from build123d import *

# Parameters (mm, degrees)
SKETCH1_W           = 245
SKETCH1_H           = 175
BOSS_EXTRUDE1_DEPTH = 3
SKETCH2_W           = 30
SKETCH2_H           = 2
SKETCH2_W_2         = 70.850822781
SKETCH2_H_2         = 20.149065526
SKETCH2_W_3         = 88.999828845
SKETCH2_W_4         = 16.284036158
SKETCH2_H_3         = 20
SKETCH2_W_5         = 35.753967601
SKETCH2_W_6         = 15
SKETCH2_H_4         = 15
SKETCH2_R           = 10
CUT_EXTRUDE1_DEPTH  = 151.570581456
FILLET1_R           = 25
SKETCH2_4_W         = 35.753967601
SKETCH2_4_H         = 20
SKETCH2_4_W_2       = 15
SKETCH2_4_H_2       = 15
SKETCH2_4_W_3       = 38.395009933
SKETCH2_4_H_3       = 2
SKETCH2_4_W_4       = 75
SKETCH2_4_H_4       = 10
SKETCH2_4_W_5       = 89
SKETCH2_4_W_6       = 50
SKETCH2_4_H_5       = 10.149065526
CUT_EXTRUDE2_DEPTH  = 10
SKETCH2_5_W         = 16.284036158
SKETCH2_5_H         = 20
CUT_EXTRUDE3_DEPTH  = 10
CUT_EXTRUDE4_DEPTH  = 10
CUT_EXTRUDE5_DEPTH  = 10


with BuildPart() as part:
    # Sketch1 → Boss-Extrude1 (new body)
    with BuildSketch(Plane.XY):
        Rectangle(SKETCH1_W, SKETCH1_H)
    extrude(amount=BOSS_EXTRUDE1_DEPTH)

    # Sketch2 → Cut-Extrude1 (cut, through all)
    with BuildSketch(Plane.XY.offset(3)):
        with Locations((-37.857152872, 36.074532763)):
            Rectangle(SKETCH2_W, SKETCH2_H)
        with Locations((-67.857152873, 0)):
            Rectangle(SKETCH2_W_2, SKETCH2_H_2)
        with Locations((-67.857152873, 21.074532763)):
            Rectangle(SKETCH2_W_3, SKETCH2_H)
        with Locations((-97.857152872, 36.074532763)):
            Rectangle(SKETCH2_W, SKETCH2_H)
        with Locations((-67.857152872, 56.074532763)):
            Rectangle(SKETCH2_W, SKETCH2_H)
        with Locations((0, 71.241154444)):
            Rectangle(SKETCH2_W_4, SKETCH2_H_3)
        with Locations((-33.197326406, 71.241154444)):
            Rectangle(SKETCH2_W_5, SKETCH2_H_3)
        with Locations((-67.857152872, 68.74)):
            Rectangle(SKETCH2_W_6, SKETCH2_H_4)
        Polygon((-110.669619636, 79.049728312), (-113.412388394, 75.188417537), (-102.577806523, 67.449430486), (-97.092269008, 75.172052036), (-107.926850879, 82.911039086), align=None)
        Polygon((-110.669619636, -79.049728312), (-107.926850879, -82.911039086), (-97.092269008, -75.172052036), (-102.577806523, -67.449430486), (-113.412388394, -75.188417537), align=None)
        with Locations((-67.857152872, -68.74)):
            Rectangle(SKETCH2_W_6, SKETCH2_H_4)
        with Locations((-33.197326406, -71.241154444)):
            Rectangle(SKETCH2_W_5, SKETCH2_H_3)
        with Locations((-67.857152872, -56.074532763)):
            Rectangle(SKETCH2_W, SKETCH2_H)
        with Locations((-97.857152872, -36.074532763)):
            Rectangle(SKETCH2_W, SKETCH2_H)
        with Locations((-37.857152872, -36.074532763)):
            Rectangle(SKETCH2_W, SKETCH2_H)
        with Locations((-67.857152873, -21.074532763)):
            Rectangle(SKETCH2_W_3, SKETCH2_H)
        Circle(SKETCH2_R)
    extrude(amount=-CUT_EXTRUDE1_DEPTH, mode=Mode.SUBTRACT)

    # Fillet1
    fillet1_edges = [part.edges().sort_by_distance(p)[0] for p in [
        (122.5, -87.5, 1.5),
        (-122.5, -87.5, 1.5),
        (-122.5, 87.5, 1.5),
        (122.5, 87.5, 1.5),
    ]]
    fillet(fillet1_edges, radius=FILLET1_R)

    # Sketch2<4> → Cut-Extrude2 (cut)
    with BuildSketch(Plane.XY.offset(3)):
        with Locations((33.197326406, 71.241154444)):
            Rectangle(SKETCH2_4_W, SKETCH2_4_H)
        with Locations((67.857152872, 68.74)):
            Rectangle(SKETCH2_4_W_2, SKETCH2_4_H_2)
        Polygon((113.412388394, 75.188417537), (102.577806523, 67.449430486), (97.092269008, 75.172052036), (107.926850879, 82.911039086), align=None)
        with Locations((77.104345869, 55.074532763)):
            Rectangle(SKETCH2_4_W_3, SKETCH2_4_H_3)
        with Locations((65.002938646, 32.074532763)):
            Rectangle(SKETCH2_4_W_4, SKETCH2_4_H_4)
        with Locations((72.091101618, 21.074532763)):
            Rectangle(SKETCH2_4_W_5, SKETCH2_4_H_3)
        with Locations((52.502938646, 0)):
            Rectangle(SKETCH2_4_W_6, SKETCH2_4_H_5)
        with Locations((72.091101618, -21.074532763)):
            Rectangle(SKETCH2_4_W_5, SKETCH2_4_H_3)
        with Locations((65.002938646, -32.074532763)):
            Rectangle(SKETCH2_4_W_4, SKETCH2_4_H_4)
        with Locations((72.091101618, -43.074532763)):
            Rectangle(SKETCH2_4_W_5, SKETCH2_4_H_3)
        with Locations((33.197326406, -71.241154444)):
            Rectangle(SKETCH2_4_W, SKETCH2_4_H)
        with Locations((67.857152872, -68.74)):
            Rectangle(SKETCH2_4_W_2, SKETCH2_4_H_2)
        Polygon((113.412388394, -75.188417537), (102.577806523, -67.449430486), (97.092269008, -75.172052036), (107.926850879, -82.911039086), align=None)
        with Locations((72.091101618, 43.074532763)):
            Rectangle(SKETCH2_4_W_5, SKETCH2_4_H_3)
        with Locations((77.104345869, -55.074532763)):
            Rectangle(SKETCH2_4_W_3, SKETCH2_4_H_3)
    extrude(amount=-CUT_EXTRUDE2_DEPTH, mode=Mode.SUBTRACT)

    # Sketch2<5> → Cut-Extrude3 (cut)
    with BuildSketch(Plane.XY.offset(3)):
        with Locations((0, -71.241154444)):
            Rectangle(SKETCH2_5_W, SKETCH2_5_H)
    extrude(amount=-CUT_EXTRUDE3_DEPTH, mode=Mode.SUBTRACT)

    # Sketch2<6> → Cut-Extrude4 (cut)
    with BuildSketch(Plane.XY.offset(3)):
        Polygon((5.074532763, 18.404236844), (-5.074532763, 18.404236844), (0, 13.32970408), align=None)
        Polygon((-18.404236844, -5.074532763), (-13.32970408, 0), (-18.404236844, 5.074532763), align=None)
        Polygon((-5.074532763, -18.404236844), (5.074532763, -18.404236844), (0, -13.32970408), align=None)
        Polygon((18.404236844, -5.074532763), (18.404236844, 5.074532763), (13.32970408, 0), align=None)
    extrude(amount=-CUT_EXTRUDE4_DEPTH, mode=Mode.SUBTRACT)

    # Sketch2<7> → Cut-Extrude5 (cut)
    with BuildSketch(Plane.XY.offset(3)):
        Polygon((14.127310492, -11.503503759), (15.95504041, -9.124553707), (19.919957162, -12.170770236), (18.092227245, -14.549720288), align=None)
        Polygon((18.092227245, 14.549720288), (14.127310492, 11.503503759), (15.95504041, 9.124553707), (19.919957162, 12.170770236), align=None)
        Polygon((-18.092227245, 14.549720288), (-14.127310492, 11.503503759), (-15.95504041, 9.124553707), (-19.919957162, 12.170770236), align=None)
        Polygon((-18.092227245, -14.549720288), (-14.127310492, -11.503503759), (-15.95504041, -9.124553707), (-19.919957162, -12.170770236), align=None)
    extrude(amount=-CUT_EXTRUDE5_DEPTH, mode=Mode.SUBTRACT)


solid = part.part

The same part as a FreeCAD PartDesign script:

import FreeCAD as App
import Part
import Sketcher
from FreeCAD import Vector


def edges_at(feature, points):
    """Names of the edges that pass closest to the given points."""
    edges = feature.Shape.Edges
    near = lambda p: min(range(len(edges)), key=lambda i: edges[i].distToShape(Part.Vertex(*p))[0])
    return sorted({f"Edge{near(p) + 1}" for p in points})


def add_polygon(sketch, points):
    """Adds a closed chain of lines whose ends are joined by coincident constraints."""
    first, n = sketch.GeometryCount, len(points)
    for a, b in zip(points, points[1:] + points[:1]):
        sketch.addGeometry(Part.LineSegment(App.Vector(*a, 0), App.Vector(*b, 0)), False)
    for i in range(n):
        sketch.addConstraint(Sketcher.Constraint("Coincident", first + i, 2, first + (i + 1) % n, 1))

doc = App.newDocument("Part")
params = doc.addObject("Spreadsheet::Sheet", "Params")
for row, (alias, value) in enumerate([
    ("sketch1_width", "245 mm"),
    ("sketch1_height", "175 mm"),
    ("pad1_length", "3 mm"),
    ("sketch2_diameter", "20 mm"),
    ("sketch2_width", "30 mm"),
    ("sketch2_width2", "15 mm"),
    ("sketch2_height", "2 mm"),
    ("sketch2_height2", "20 mm"),
    ("fillet_radius", "25 mm"),
    ("sketch3_width", "15 mm"),
    ("sketch3_width2", "75 mm"),
    ("sketch3_width3", "89 mm"),
    ("sketch3_width4", "50 mm"),
    ("sketch3_height", "20 mm"),
    ("pocket2_length", "10 mm"),
    ("sketch4_height", "20 mm"),
    ("pocket3_length", "10 mm"),
    ("pocket4_length", "10 mm"),
    ("sketch6_length", "3 mm"),
    ("sketch6_length2", "5 mm"),
    ("pocket5_length", "10 mm"),
], start=1):
    params.set(f"A{row}", alias)
    params.set(f"B{row}", "=" + value)
    params.setAlias(f"B{row}", alias)

body = doc.addObject("PartDesign::Body", "Body")

sketch1 = body.newObject("Sketcher::SketchObject", "Sketch")
sketch1.AttachmentSupport = (doc.getObject("XY_Plane"), [""])
sketch1.MapMode = "FlatFace"
add_polygon(sketch1, [(-122, 88), (-122, -88), (122, -88), (122, 88)])
sketch1.addConstraint(Sketcher.Constraint("Vertical", 0))
sketch1.addConstraint(Sketcher.Constraint("Horizontal", 1))
sketch1.addConstraint(Sketcher.Constraint("Vertical", 2))
sketch1.addConstraint(Sketcher.Constraint("Horizontal", 3))
sketch1.addConstraint(Sketcher.Constraint("Symmetric", 0, 2, 2, 2, -1, 1))
sketch1.addConstraint(Sketcher.Constraint("DistanceX", 1, 1, 1, 2, 245.0))
sketch1.addConstraint(Sketcher.Constraint("DistanceY", 0, 2, 0, 1, 175.0))
sketch1.setExpression("Constraints[9]", "Params.sketch1_width")
sketch1.setExpression("Constraints[10]", "Params.sketch1_height")
pad1 = body.newObject("PartDesign::Pad", "Pad")
pad1.Profile = sketch1
pad1.setExpression("Length", "Params.pad1_length")

sketch2 = body.newObject("Sketcher::SketchObject", "Sketch001")
sketch2.AttachmentSupport = (doc.getObject("XY_Plane"), [""])
sketch2.MapMode = "FlatFace"
sketch2.AttachmentOffset = App.Placement(Vector(0, 0, 3), App.Rotation())
add_polygon(sketch2, [(-52.9, 37.1), (-52.9, 35.1), (-22.9, 35.1), (-22.9, 37.1)])
add_polygon(sketch2, [(-103.3, 10.1), (-103.3, -10.1), (-32.4, -10.1), (-32.4, 10.1)])
add_polygon(sketch2, [(-112.4, 22.1), (-112.4, 20.1), (-23.4, 20.1), (-23.4, 22.1)])
add_polygon(sketch2, [(-112.9, 37.1), (-112.9, 35.1), (-82.9, 35.1), (-82.9, 37.1)])
add_polygon(sketch2, [(-82.9, 57.1), (-82.9, 55.1), (-52.9, 55.1), (-52.9, 57.1)])
add_polygon(sketch2, [(-8.1, 81.2), (-8.1, 61.2), (8.1, 61.2), (8.1, 81.2)])
add_polygon(sketch2, [(-51.1, 81.2), (-51.1, 61.2), (-15.3, 61.2), (-15.3, 81.2)])
add_polygon(sketch2, [(-75.4, 76.2), (-75.4, 61.2), (-60.4, 61.2), (-60.4, 76.2)])
add_polygon(sketch2, [(-110.7, 79), (-113.4, 75.2), (-102.6, 67.4), (-97.1, 75.2), (-107.9, 82.9)])
add_polygon(sketch2, [(-110.7, -79), (-107.9, -82.9), (-97.1, -75.2), (-102.6, -67.4), (-113.4, -75.2)])
add_polygon(sketch2, [(-75.4, -61.2), (-75.4, -76.2), (-60.4, -76.2), (-60.4, -61.2)])
add_polygon(sketch2, [(-51.1, -61.2), (-51.1, -81.2), (-15.3, -81.2), (-15.3, -61.2)])
add_polygon(sketch2, [(-82.9, -55.1), (-82.9, -57.1), (-52.9, -57.1), (-52.9, -55.1)])
add_polygon(sketch2, [(-112.9, -35.1), (-112.9, -37.1), (-82.9, -37.1), (-82.9, -35.1)])
add_polygon(sketch2, [(-52.9, -35.1), (-52.9, -37.1), (-22.9, -37.1), (-22.9, -35.1)])
add_polygon(sketch2, [(-112.4, -20.1), (-112.4, -22.1), (-23.4, -22.1), (-23.4, -20.1)])
sketch2.addGeometry(Part.Circle(Vector(0, 0, 0), Vector(0, 0, 1), 10), False)
sketch2.addConstraint(Sketcher.Constraint("Vertical", 0))
sketch2.addConstraint(Sketcher.Constraint("Horizontal", 1))
sketch2.addConstraint(Sketcher.Constraint("Vertical", 2))
sketch2.addConstraint(Sketcher.Constraint("Horizontal", 3))
sketch2.addConstraint(Sketcher.Constraint("Vertical", 4))
sketch2.addConstraint(Sketcher.Constraint("Horizontal", 5))
sketch2.addConstraint(Sketcher.Constraint("Vertical", 6))
sketch2.addConstraint(Sketcher.Constraint("Horizontal", 7))
sketch2.addConstraint(Sketcher.Constraint("Vertical", 8))
sketch2.addConstraint(Sketcher.Constraint("Horizontal", 9))
sketch2.addConstraint(Sketcher.Constraint("Vertical", 10))
sketch2.addConstraint(Sketcher.Constraint("Horizontal", 11))
sketch2.addConstraint(Sketcher.Constraint("Vertical", 12))
sketch2.addConstraint(Sketcher.Constraint("Horizontal", 13))
sketch2.addConstraint(Sketcher.Constraint("Vertical", 14))
sketch2.addConstraint(Sketcher.Constraint("Horizontal", 15))
sketch2.addConstraint(Sketcher.Constraint("Vertical", 16))
sketch2.addConstraint(Sketcher.Constraint("Horizontal", 17))
sketch2.addConstraint(Sketcher.Constraint("Vertical", 18))
sketch2.addConstraint(Sketcher.Constraint("Horizontal", 19))
sketch2.addConstraint(Sketcher.Constraint("Vertical", 20))
sketch2.addConstraint(Sketcher.Constraint("Horizontal", 21))
sketch2.addConstraint(Sketcher.Constraint("Vertical", 22))
sketch2.addConstraint(Sketcher.Constraint("Horizontal", 23))
sketch2.addConstraint(Sketcher.Constraint("Vertical", 24))
sketch2.addConstraint(Sketcher.Constraint("Horizontal", 25))
sketch2.addConstraint(Sketcher.Constraint("Vertical", 26))
sketch2.addConstraint(Sketcher.Constraint("Horizontal", 27))
sketch2.addConstraint(Sketcher.Constraint("Vertical", 28))
sketch2.addConstraint(Sketcher.Constraint("Horizontal", 29))
sketch2.addConstraint(Sketcher.Constraint("Vertical", 30))
sketch2.addConstraint(Sketcher.Constraint("Horizontal", 31))
sketch2.addConstraint(Sketcher.Constraint("Vertical", 42))
sketch2.addConstraint(Sketcher.Constraint("Horizontal", 43))
sketch2.addConstraint(Sketcher.Constraint("Vertical", 44))
sketch2.addConstraint(Sketcher.Constraint("Horizontal", 45))
sketch2.addConstraint(Sketcher.Constraint("Vertical", 46))
sketch2.addConstraint(Sketcher.Constraint("Horizontal", 47))
sketch2.addConstraint(Sketcher.Constraint("Vertical", 48))
sketch2.addConstraint(Sketcher.Constraint("Horizontal", 49))
sketch2.addConstraint(Sketcher.Constraint("Vertical", 50))
sketch2.addConstraint(Sketcher.Constraint("Horizontal", 51))
sketch2.addConstraint(Sketcher.Constraint("Vertical", 52))
sketch2.addConstraint(Sketcher.Constraint("Horizontal", 53))
sketch2.addConstraint(Sketcher.Constraint("Vertical", 54))
sketch2.addConstraint(Sketcher.Constraint("Horizontal", 55))
sketch2.addConstraint(Sketcher.Constraint("Vertical", 56))
sketch2.addConstraint(Sketcher.Constraint("Horizontal", 57))
sketch2.addConstraint(Sketcher.Constraint("Vertical", 58))
sketch2.addConstraint(Sketcher.Constraint("Horizontal", 59))
sketch2.addConstraint(Sketcher.Constraint("Vertical", 60))
sketch2.addConstraint(Sketcher.Constraint("Horizontal", 61))
sketch2.addConstraint(Sketcher.Constraint("Vertical", 62))
sketch2.addConstraint(Sketcher.Constraint("Horizontal", 63))
sketch2.addConstraint(Sketcher.Constraint("Vertical", 64))
sketch2.addConstraint(Sketcher.Constraint("Horizontal", 65))
sketch2.addConstraint(Sketcher.Constraint("Coincident", 66, 3, -1, 1))
sketch2.addConstraint(Sketcher.Constraint("Symmetric", 35, 2, 37, 2, -1))
sketch2.addConstraint(Sketcher.Constraint("Symmetric", 34, 2, 38, 2, -1))
sketch2.addConstraint(Sketcher.Constraint("Symmetric", 33, 2, 39, 2, -1))
sketch2.addConstraint(Sketcher.Constraint("Symmetric", 32, 2, 40, 2, -1))
sketch2.addConstraint(Sketcher.Constraint("Symmetric", 36, 2, 41, 2, -1))
sketch2.addConstraint(Sketcher.Constraint("Symmetric", 31, 2, 42, 2, -1))
sketch2.addConstraint(Sketcher.Constraint("Symmetric", 29, 2, 44, 2, -1))
sketch2.addConstraint(Sketcher.Constraint("Symmetric", 27, 2, 46, 2, -1))
sketch2.addConstraint(Sketcher.Constraint("Symmetric", 25, 2, 48, 2, -1))
sketch2.addConstraint(Sketcher.Constraint("Symmetric", 19, 2, 50, 2, -1))
sketch2.addConstraint(Sketcher.Constraint("Symmetric", 17, 2, 52, 2, -1))
sketch2.addConstraint(Sketcher.Constraint("Symmetric", 15, 2, 54, 2, -1))
sketch2.addConstraint(Sketcher.Constraint("Symmetric", 13, 2, 56, 2, -1))
sketch2.addConstraint(Sketcher.Constraint("Symmetric", 3, 2, 58, 2, -1))
sketch2.addConstraint(Sketcher.Constraint("Symmetric", 1, 2, 60, 2, -1))
sketch2.addConstraint(Sketcher.Constraint("Symmetric", 11, 2, 62, 2, -1))
sketch2.addConstraint(Sketcher.Constraint("Symmetric", 9, 2, 64, 2, -1))
sketch2.addConstraint(Sketcher.Constraint("Parallel", 32, 34))
sketch2.addConstraint(Sketcher.Constraint("Parallel", 33, 35))
sketch2.addConstraint(Sketcher.Constraint("Parallel", 34, 36))
sketch2.addConstraint(Sketcher.Constraint("Horizontal", 1, 2, 12, 2))
sketch2.addConstraint(Sketcher.Constraint("Horizontal", 3, 2, 14, 2))
sketch2.addConstraint(Sketcher.Constraint("Horizontal", 21, 2, 24, 2))
sketch2.addConstraint(Sketcher.Constraint("Horizontal", 23, 2, 26, 2))
sketch2.addConstraint(Sketcher.Constraint("Vertical", 14, 2, 16, 2))
sketch2.addConstraint(Sketcher.Constraint("Vertical", 3, 2, 17, 2))
sketch2.addConstraint(Sketcher.Constraint("Equal", 3, 13))
sketch2.addConstraint(Sketcher.Constraint("Equal", 15, 17))
sketch2.addConstraint(Sketcher.Constraint("Equal", 2, 8))
sketch2.addConstraint(Sketcher.Constraint("Equal", 14, 16))
sketch2.addConstraint(Sketcher.Constraint("Equal", 45, 28))
sketch2.addConstraint(Sketcher.Constraint("Equal", 32, 36))
sketch2.addConstraint(Sketcher.Constraint("Diameter", 66, 20.0))
sketch2.addConstraint(Sketcher.Constraint("DistanceX", 1, 1, 1, 2, 30.0))
sketch2.addConstraint(Sketcher.Constraint("DistanceX", 29, 1, 29, 2, 15.0))
sketch2.addConstraint(Sketcher.Constraint("DistanceY", 0, 2, 0, 1, 2.0))
sketch2.addConstraint(Sketcher.Constraint("DistanceY", 20, 2, 20, 1, 20.0))
sketch2.addConstraint(Sketcher.Constraint("DistanceY", -1, 1, 28, 2, 61.24))
sketch2.addConstraint(Sketcher.Constraint("DistanceX", 9, 1, 9, 2, 88.999829))
sketch2.addConstraint(Sketcher.Constraint("DistanceX", 5, 1, 5, 2, 70.850823))
sketch2.addConstraint(Sketcher.Constraint("DistanceX", 21, 1, 21, 2, 16.284036))
sketch2.addConstraint(Sketcher.Constraint("DistanceX", 25, 1, 25, 2, 35.753968))
sketch2.addConstraint(Sketcher.Constraint("DistanceY", 4, 2, 4, 1, 20.149066))
sketch2.addConstraint(Sketcher.Constraint("DistanceX", 5, 2, -1, 1, 32.431741))
sketch2.addConstraint(Sketcher.Constraint("DistanceX", 9, 2, -1, 1, 23.357238))
sketch2.addConstraint(Sketcher.Constraint("DistanceX", 20, 2, -1, 1, 8.142018))
sketch2.addConstraint(Sketcher.Constraint("DistanceX", 24, 2, -1, 1, 51.07431))
sketch2.addConstraint(Sketcher.Constraint("DistanceX", 32, 2, -1, 1, 113.412388))
sketch2.addConstraint(Sketcher.Constraint("DistanceY", -1, 1, 33, 2, 67.44943))
sketch2.addConstraint(Sketcher.Constraint("DistanceX", 34, 2, -1, 1, 97.092269))
sketch2.addConstraint(Sketcher.Constraint("DistanceX", 35, 2, -1, 1, 107.926851))
sketch2.addConstraint(Sketcher.Constraint("DistanceY", -1, 1, 35, 2, 82.911039))
sketch2.addConstraint(Sketcher.Constraint("DistanceY", -1, 1, 36, 2, 79.049728))
sketch2.addConstraint(Sketcher.Constraint("DistanceX", 0, 2, -1, 1, 52.857153))
sketch2.addConstraint(Sketcher.Constraint("DistanceY", -1, 1, 0, 2, 35.074533))
sketch2.addConstraint(Sketcher.Constraint("DistanceY", 4, 2, -1, 1, 10.074533))
sketch2.addConstraint(Sketcher.Constraint("DistanceY", -1, 1, 8, 2, 20.074533))
sketch2.addConstraint(Sketcher.Constraint("DistanceY", -1, 1, 16, 2, 55.074533))
sketch2.addConstraint(Sketcher.Constraint("DistanceY", -1, 1, 20, 2, 61.241154))
sketch2.addConstraint(Sketcher.Constraint("DistanceX", 28, 2, -1, 1, 75.357153))
sketch2.setExpression("Constraints[155]", "Params.sketch2_diameter")
sketch2.setExpression("Constraints[156]", "Params.sketch2_width")
sketch2.setExpression("Constraints[157]", "Params.sketch2_width2")
sketch2.setExpression("Constraints[158]", "Params.sketch2_height")
sketch2.setExpression("Constraints[159]", "Params.sketch2_height2")
pocket1 = body.newObject("PartDesign::Pocket", "Pocket")
pocket1.Profile = sketch2
pocket1.Type = "ThroughAll"
doc.recompute()

fillet = body.newObject("PartDesign::Fillet", "Fillet")
fillet.Base = (pocket1, edges_at(pocket1, [
    (122.5, -87.5, 1.5),
    (-122.5, -87.5, 1.5),
    (-122.5, 87.5, 1.5),
    (122.5, 87.5, 1.5),
]))
fillet.setExpression("Radius", "Params.fillet_radius")

sketch3 = body.newObject("Sketcher::SketchObject", "Sketch002")
sketch3.AttachmentSupport = (doc.getObject("XY_Plane"), [""])
sketch3.MapMode = "FlatFace"
sketch3.AttachmentOffset = App.Placement(Vector(0, 0, 3), App.Rotation())
add_polygon(sketch3, [(15.3, 81.2), (15.3, 61.2), (51.1, 61.2), (51.1, 81.2)])
add_polygon(sketch3, [(60.4, 76.2), (60.4, 61.2), (75.4, 61.2), (75.4, 76.2)])
add_polygon(sketch3, [(102.6, 67.4), (113.4, 75.2), (107.9, 82.9), (97.1, 75.2)])
add_polygon(sketch3, [(57.9, 56.1), (57.9, 54.1), (96.3, 54.1), (96.3, 56.1)])
add_polygon(sketch3, [(27.5, 37.1), (27.5, 27.1), (102.5, 27.1), (102.5, 37.1)])
add_polygon(sketch3, [(27.6, 22.1), (27.6, 20.1), (116.6, 20.1), (116.6, 22.1)])
add_polygon(sketch3, [(27.5, 5.1), (27.5, -5.1), (77.5, -5.1), (77.5, 5.1)])
add_polygon(sketch3, [(27.6, -20.1), (27.6, -22.1), (116.6, -22.1), (116.6, -20.1)])
add_polygon(sketch3, [(27.5, -27.1), (27.5, -37.1), (102.5, -37.1), (102.5, -27.1)])
add_polygon(sketch3, [(27.6, -42.1), (27.6, -44.1), (116.6, -44.1), (116.6, -42.1)])
add_polygon(sketch3, [(15.3, -61.2), (15.3, -81.2), (51.1, -81.2), (51.1, -61.2)])
add_polygon(sketch3, [(60.4, -61.2), (60.4, -76.2), (75.4, -76.2), (75.4, -61.2)])
add_polygon(sketch3, [(113.4, -75.2), (102.6, -67.4), (97.1, -75.2), (107.9, -82.9)])
add_polygon(sketch3, [(27.6, 44.1), (27.6, 42.1), (116.6, 42.1), (116.6, 44.1)])
add_polygon(sketch3, [(57.9, -54.1), (57.9, -56.1), (96.3, -56.1), (96.3, -54.1)])
sketch3.addConstraint(Sketcher.Constraint("Vertical", 0))
sketch3.addConstraint(Sketcher.Constraint("Horizontal", 1))
sketch3.addConstraint(Sketcher.Constraint("Vertical", 2))
sketch3.addConstraint(Sketcher.Constraint("Horizontal", 3))
sketch3.addConstraint(Sketcher.Constraint("Vertical", 4))
sketch3.addConstraint(Sketcher.Constraint("Horizontal", 5))
sketch3.addConstraint(Sketcher.Constraint("Vertical", 6))
sketch3.addConstraint(Sketcher.Constraint("Horizontal", 7))
sketch3.addConstraint(Sketcher.Constraint("Vertical", 12))
sketch3.addConstraint(Sketcher.Constraint("Horizontal", 13))
sketch3.addConstraint(Sketcher.Constraint("Vertical", 14))
sketch3.addConstraint(Sketcher.Constraint("Horizontal", 15))
sketch3.addConstraint(Sketcher.Constraint("Vertical", 16))
sketch3.addConstraint(Sketcher.Constraint("Horizontal", 17))
sketch3.addConstraint(Sketcher.Constraint("Vertical", 18))
sketch3.addConstraint(Sketcher.Constraint("Horizontal", 19))
sketch3.addConstraint(Sketcher.Constraint("Vertical", 20))
sketch3.addConstraint(Sketcher.Constraint("Horizontal", 21))
sketch3.addConstraint(Sketcher.Constraint("Vertical", 22))
sketch3.addConstraint(Sketcher.Constraint("Horizontal", 23))
sketch3.addConstraint(Sketcher.Constraint("Vertical", 24))
sketch3.addConstraint(Sketcher.Constraint("Horizontal", 25))
sketch3.addConstraint(Sketcher.Constraint("Vertical", 26))
sketch3.addConstraint(Sketcher.Constraint("Horizontal", 27))
sketch3.addConstraint(Sketcher.Constraint("Vertical", 28))
sketch3.addConstraint(Sketcher.Constraint("Horizontal", 29))
sketch3.addConstraint(Sketcher.Constraint("Vertical", 30))
sketch3.addConstraint(Sketcher.Constraint("Horizontal", 31))
sketch3.addConstraint(Sketcher.Constraint("Vertical", 32))
sketch3.addConstraint(Sketcher.Constraint("Horizontal", 33))
sketch3.addConstraint(Sketcher.Constraint("Vertical", 34))
sketch3.addConstraint(Sketcher.Constraint("Horizontal", 35))
sketch3.addConstraint(Sketcher.Constraint("Vertical", 36))
sketch3.addConstraint(Sketcher.Constraint("Horizontal", 37))
sketch3.addConstraint(Sketcher.Constraint("Vertical", 38))
sketch3.addConstraint(Sketcher.Constraint("Horizontal", 39))
sketch3.addConstraint(Sketcher.Constraint("Vertical", 40))
sketch3.addConstraint(Sketcher.Constraint("Horizontal", 41))
sketch3.addConstraint(Sketcher.Constraint("Vertical", 42))
sketch3.addConstraint(Sketcher.Constraint("Horizontal", 43))
sketch3.addConstraint(Sketcher.Constraint("Vertical", 44))
sketch3.addConstraint(Sketcher.Constraint("Horizontal", 45))
sketch3.addConstraint(Sketcher.Constraint("Vertical", 46))
sketch3.addConstraint(Sketcher.Constraint("Horizontal", 47))
sketch3.addConstraint(Sketcher.Constraint("Vertical", 52))
sketch3.addConstraint(Sketcher.Constraint("Horizontal", 53))
sketch3.addConstraint(Sketcher.Constraint("Vertical", 54))
sketch3.addConstraint(Sketcher.Constraint("Horizontal", 55))
sketch3.addConstraint(Sketcher.Constraint("Vertical", 56))
sketch3.addConstraint(Sketcher.Constraint("Horizontal", 57))
sketch3.addConstraint(Sketcher.Constraint("Vertical", 58))
sketch3.addConstraint(Sketcher.Constraint("Horizontal", 59))
sketch3.addConstraint(Sketcher.Constraint("Symmetric", 23, 2, 28, 2, -1))
sketch3.addConstraint(Sketcher.Constraint("Symmetric", 21, 2, 30, 2, -1))
sketch3.addConstraint(Sketcher.Constraint("Symmetric", 19, 2, 32, 2, -1))
sketch3.addConstraint(Sketcher.Constraint("Symmetric", 17, 2, 34, 2, -1))
sketch3.addConstraint(Sketcher.Constraint("Symmetric", 3, 2, 40, 2, -1))
sketch3.addConstraint(Sketcher.Constraint("Symmetric", 1, 2, 42, 2, -1))
sketch3.addConstraint(Sketcher.Constraint("Symmetric", 7, 2, 44, 2, -1))
sketch3.addConstraint(Sketcher.Constraint("Symmetric", 5, 2, 46, 2, -1))
sketch3.addConstraint(Sketcher.Constraint("Symmetric", 11, 2, 48, 2, -1))
sketch3.addConstraint(Sketcher.Constraint("Symmetric", 10, 2, 49, 2, -1))
sketch3.addConstraint(Sketcher.Constraint("Symmetric", 9, 2, 50, 2, -1))
sketch3.addConstraint(Sketcher.Constraint("Symmetric", 8, 2, 51, 2, -1))
sketch3.addConstraint(Sketcher.Constraint("Symmetric", 39, 2, 52, 2, -1))
sketch3.addConstraint(Sketcher.Constraint("Symmetric", 37, 2, 54, 2, -1))
sketch3.addConstraint(Sketcher.Constraint("Symmetric", 15, 2, 56, 2, -1))
sketch3.addConstraint(Sketcher.Constraint("Symmetric", 13, 2, 58, 2, -1))
sketch3.addConstraint(Sketcher.Constraint("Parallel", 8, 10))
sketch3.addConstraint(Sketcher.Constraint("Parallel", 9, 11))
sketch3.addConstraint(Sketcher.Constraint("Vertical", 19, 2, 24, 2))
sketch3.addConstraint(Sketcher.Constraint("Vertical", 31, 2, 36, 2))
sketch3.addConstraint(Sketcher.Constraint("Vertical", 30, 2, 37, 2))
sketch3.addConstraint(Sketcher.Constraint("Equal", 47, 4))
sketch3.addConstraint(Sketcher.Constraint("Equal", 14, 20))
sketch3.addConstraint(Sketcher.Constraint("Equal", 30, 36))
sketch3.addConstraint(Sketcher.Constraint("DistanceX", 5, 1, 5, 2, 15.0))
sketch3.addConstraint(Sketcher.Constraint("DistanceX", 17, 1, 17, 2, 75.0))
sketch3.addConstraint(Sketcher.Constraint("DistanceX", 21, 1, 21, 2, 89.0))
sketch3.addConstraint(Sketcher.Constraint("DistanceX", 25, 1, 25, 2, 50.0))
sketch3.addConstraint(Sketcher.Constraint("DistanceY", 0, 2, 0, 1, 20.0))
sketch3.addConstraint(Sketcher.Constraint("DistanceY", 12, 2, 12, 1, 2.0))
sketch3.addConstraint(Sketcher.Constraint("DistanceY", 16, 2, 16, 1, 10.0))
sketch3.addConstraint(Sketcher.Constraint("DistanceY", 16, 2, 12, 2, 27.0))
sketch3.addConstraint(Sketcher.Constraint("DistanceY", 20, 2, 16, 2, 7.0))
sketch3.addConstraint(Sketcher.Constraint("DistanceY", 26, 2, 17, 2, 22.0))
sketch3.addConstraint(Sketcher.Constraint("DistanceY", 28, 2, 24, 2, 17.0))
sketch3.addConstraint(Sketcher.Constraint("DistanceY", 36, 2, 32, 2, 7.0))
sketch3.addConstraint(Sketcher.Constraint("DistanceY", -1, 1, 4, 2, 61.24))
sketch3.addConstraint(Sketcher.Constraint("DistanceX", 13, 1, 13, 2, 38.39501))
sketch3.addConstraint(Sketcher.Constraint("DistanceX", -1, 1, 20, 2, 27.591102))
sketch3.addConstraint(Sketcher.Constraint("DistanceX", 6, 2, 9, 2, 32.569698))
sketch3.addConstraint(Sketcher.Constraint("DistanceX", 1, 1, 1, 2, 35.753968))
sketch3.addConstraint(Sketcher.Constraint("DistanceY", 24, 2, 24, 1, 10.149066))
sketch3.addConstraint(Sketcher.Constraint("DistanceX", -1, 1, 1, 2, 51.07431))
sketch3.addConstraint(Sketcher.Constraint("DistanceX", -1, 1, 8, 2, 113.412388))
sketch3.addConstraint(Sketcher.Constraint("DistanceX", -1, 1, 9, 2, 107.926851))
sketch3.addConstraint(Sketcher.Constraint("DistanceY", -1, 1, 9, 2, 82.911039))
sketch3.addConstraint(Sketcher.Constraint("DistanceX", -1, 1, 10, 2, 97.092269))
sketch3.addConstraint(Sketcher.Constraint("DistanceY", -1, 1, 11, 2, 67.44943))
sketch3.addConstraint(Sketcher.Constraint("DistanceX", -1, 1, 12, 2, 57.906841))
sketch3.addConstraint(Sketcher.Constraint("DistanceX", -1, 1, 16, 2, 27.502939))
sketch3.addConstraint(Sketcher.Constraint("DistanceY", 8, 2, 9, 2, 7.722622))
sketch3.addConstraint(Sketcher.Constraint("DistanceY", 12, 2, 1, 2, 7.166622))
sketch3.setExpression("Constraints[136]", "Params.sketch3_width")
sketch3.setExpression("Constraints[137]", "Params.sketch3_width2")
sketch3.setExpression("Constraints[138]", "Params.sketch3_width3")
sketch3.setExpression("Constraints[139]", "Params.sketch3_width4")
sketch3.setExpression("Constraints[140]", "Params.sketch3_height")
pocket2 = body.newObject("PartDesign::Pocket", "Pocket001")
pocket2.Profile = sketch3
pocket2.setExpression("Length", "Params.pocket2_length")

sketch4 = body.newObject("Sketcher::SketchObject", "Sketch003")
sketch4.AttachmentSupport = (doc.getObject("XY_Plane"), [""])
sketch4.MapMode = "FlatFace"
sketch4.AttachmentOffset = App.Placement(Vector(0, 0, 3), App.Rotation())
add_polygon(sketch4, [(-8, -61), (-8, -81), (8, -81), (8, -61)])
sketch4.addConstraint(Sketcher.Constraint("Vertical", 0))
sketch4.addConstraint(Sketcher.Constraint("Horizontal", 1))
sketch4.addConstraint(Sketcher.Constraint("Vertical", 2))
sketch4.addConstraint(Sketcher.Constraint("Horizontal", 3))
sketch4.addConstraint(Sketcher.Constraint("DistanceY", 0, 2, 0, 1, 20.0))
sketch4.addConstraint(Sketcher.Constraint("DistanceX", 1, 1, 1, 2, 16.284036))
sketch4.addConstraint(Sketcher.Constraint("DistanceX", 0, 2, -1, 1, 8.142018))
sketch4.addConstraint(Sketcher.Constraint("DistanceY", 0, 2, -1, 1, 81.241154))
sketch4.setExpression("Constraints[8]", "Params.sketch4_height")
pocket3 = body.newObject("PartDesign::Pocket", "Pocket002")
pocket3.Profile = sketch4
pocket3.setExpression("Length", "Params.pocket3_length")

sketch5 = body.newObject("Sketcher::SketchObject", "Sketch004")
sketch5.AttachmentSupport = (doc.getObject("XY_Plane"), [""])
sketch5.MapMode = "FlatFace"
sketch5.AttachmentOffset = App.Placement(Vector(0, 0, 3), App.Rotation())
add_polygon(sketch5, [(5, 18), (-5, 18), (0, 13)])
add_polygon(sketch5, [(-18, -5), (-13, 0), (-18, 5)])
add_polygon(sketch5, [(-5, -18), (5, -18), (0, -13)])
add_polygon(sketch5, [(18, -5), (18, 5), (13, 0)])
sketch5.addConstraint(Sketcher.Constraint("Horizontal", 0))
sketch5.addConstraint(Sketcher.Constraint("Vertical", 5))
sketch5.addConstraint(Sketcher.Constraint("Horizontal", 6))
sketch5.addConstraint(Sketcher.Constraint("Vertical", 9))
sketch5.addConstraint(Sketcher.Constraint("Symmetric", 0, 2, 6, 2, -1, 1))
sketch5.addConstraint(Sketcher.Constraint("Symmetric", 1, 2, 7, 2, -1, 1))
sketch5.addConstraint(Sketcher.Constraint("Symmetric", 5, 2, 9, 2, -1, 1))
sketch5.addConstraint(Sketcher.Constraint("Symmetric", 3, 2, 10, 2, -1, 1))
sketch5.addConstraint(Sketcher.Constraint("PointOnObject", 1, 2, -2))
sketch5.addConstraint(Sketcher.Constraint("PointOnObject", 3, 2, -1))
sketch5.addConstraint(Sketcher.Constraint("Perpendicular", 1, 2))
sketch5.addConstraint(Sketcher.Constraint("Parallel", 2, 3))
sketch5.addConstraint(Sketcher.Constraint("Perpendicular", 3, 4))
sketch5.addConstraint(Sketcher.Constraint("Perpendicular", 7, 8))
sketch5.addConstraint(Sketcher.Constraint("Perpendicular", 10, 11))
sketch5.addConstraint(Sketcher.Constraint("Horizontal", 4, 2, 9, 2))
sketch5.addConstraint(Sketcher.Constraint("Equal", 6, 5))
sketch5.addConstraint(Sketcher.Constraint("DistanceX", 0, 2, 0, 1, 10.149066))
sketch5.addConstraint(Sketcher.Constraint("DistanceX", 3, 2, 0, 2, 8.255171))
sketch5.addConstraint(Sketcher.Constraint("DistanceY", 4, 2, 1, 2, 8.255171))
pocket4 = body.newObject("PartDesign::Pocket", "Pocket003")
pocket4.Profile = sketch5
pocket4.setExpression("Length", "Params.pocket4_length")

sketch6 = body.newObject("Sketcher::SketchObject", "Sketch005")
sketch6.AttachmentSupport = (doc.getObject("XY_Plane"), [""])
sketch6.MapMode = "FlatFace"
sketch6.AttachmentOffset = App.Placement(Vector(0, 0, 3), App.Rotation())
add_polygon(sketch6, [(16, -9.1), (14.1, -11.5), (18.1, -14.5), (19.9, -12.2)])
add_polygon(sketch6, [(18.1, 14.5), (14.1, 11.5), (16, 9.1), (19.9, 12.2)])
add_polygon(sketch6, [(-14.1, 11.5), (-18.1, 14.5), (-19.9, 12.2), (-16, 9.1)])
add_polygon(sketch6, [(-18.1, -14.5), (-14.1, -11.5), (-16, -9.1), (-19.9, -12.2)])
sketch6.addConstraint(Sketcher.Constraint("Symmetric", 1, 2, 8, 2, -1, 1))
sketch6.addConstraint(Sketcher.Constraint("Symmetric", 2, 2, 9, 2, -1, 1))
sketch6.addConstraint(Sketcher.Constraint("Symmetric", 3, 2, 10, 2, -1, 1))
sketch6.addConstraint(Sketcher.Constraint("Symmetric", 0, 2, 11, 2, -1, 1))
sketch6.addConstraint(Sketcher.Constraint("Symmetric", 4, 2, 12, 2, -1, 1))
sketch6.addConstraint(Sketcher.Constraint("Symmetric", 5, 2, 13, 2, -1, 1))
sketch6.addConstraint(Sketcher.Constraint("Symmetric", 6, 2, 14, 2, -1, 1))
sketch6.addConstraint(Sketcher.Constraint("Symmetric", 7, 2, 15, 2, -1, 1))
sketch6.addConstraint(Sketcher.Constraint("Symmetric", 7, 2, 8, 2, -2))
sketch6.addConstraint(Sketcher.Constraint("Symmetric", 6, 2, 9, 2, -2))
sketch6.addConstraint(Sketcher.Constraint("Symmetric", 5, 2, 10, 2, -2))
sketch6.addConstraint(Sketcher.Constraint("Symmetric", 4, 2, 11, 2, -2))
sketch6.addConstraint(Sketcher.Constraint("Perpendicular", 0, 1))
sketch6.addConstraint(Sketcher.Constraint("Perpendicular", 1, 2))
sketch6.addConstraint(Sketcher.Constraint("Perpendicular", 2, 3))
sketch6.addConstraint(Sketcher.Constraint("Distance", 0, 3.0))
sketch6.addConstraint(Sketcher.Constraint("Distance", 1, 5.0))
sketch6.addConstraint(Sketcher.Constraint("DistanceX", -1, 1, 0, 2, 14.12731))
sketch6.addConstraint(Sketcher.Constraint("DistanceY", 1, 2, -1, 1, 14.54972))
sketch6.addConstraint(Sketcher.Constraint("DistanceY", 2, 2, -1, 1, 12.17077))
sketch6.setExpression("Constraints[31]", "Params.sketch6_length")
sketch6.setExpression("Constraints[32]", "Params.sketch6_length2")
pocket5 = body.newObject("PartDesign::Pocket", "Pocket004")
pocket5.Profile = sketch6
pocket5.setExpression("Length", "Params.pocket5_length")

doc.recompute()
